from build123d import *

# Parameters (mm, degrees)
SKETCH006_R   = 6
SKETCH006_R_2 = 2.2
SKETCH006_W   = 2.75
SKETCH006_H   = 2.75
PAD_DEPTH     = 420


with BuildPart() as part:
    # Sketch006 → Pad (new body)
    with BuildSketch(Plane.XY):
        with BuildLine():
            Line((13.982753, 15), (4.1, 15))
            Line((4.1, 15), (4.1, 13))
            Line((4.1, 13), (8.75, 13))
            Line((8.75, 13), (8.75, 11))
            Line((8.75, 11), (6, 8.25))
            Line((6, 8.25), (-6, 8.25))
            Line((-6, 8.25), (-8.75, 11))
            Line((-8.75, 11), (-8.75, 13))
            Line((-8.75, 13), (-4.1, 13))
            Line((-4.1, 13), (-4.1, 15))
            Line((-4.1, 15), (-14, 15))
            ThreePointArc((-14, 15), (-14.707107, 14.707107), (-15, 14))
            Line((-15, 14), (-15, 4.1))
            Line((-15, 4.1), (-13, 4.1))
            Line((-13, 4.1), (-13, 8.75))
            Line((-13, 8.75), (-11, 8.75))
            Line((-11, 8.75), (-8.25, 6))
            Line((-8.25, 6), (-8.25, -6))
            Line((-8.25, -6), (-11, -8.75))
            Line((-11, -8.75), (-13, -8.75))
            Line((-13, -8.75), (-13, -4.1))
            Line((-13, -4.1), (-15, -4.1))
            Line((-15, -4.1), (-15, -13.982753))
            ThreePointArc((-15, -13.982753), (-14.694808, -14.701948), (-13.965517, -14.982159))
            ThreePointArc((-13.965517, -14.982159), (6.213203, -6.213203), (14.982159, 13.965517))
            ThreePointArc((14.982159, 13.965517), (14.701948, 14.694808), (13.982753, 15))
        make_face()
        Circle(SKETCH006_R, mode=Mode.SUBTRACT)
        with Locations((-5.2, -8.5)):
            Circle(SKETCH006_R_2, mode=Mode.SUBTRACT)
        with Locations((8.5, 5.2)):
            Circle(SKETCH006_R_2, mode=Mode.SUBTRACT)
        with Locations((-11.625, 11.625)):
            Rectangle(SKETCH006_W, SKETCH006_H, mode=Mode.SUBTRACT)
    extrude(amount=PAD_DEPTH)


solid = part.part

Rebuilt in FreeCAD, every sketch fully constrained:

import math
import FreeCAD as App
import Part
import Sketcher
Q = App.Units.Quantity


def add_polygon(sketch, points):
    """Adds a closed chain of lines whose ends are joined by coincident constraints."""
    first, n = sketch.GeometryCount, len(points)
    for a, b in zip(points, points[1:] + points[:1]):
        sketch.addGeometry(Part.LineSegment(App.Vector(*a, 0), App.Vector(*b, 0)), False)
    for i in range(n):
        sketch.addConstraint(Sketcher.Constraint("Coincident", first + i, 2, first + (i + 1) % n, 1))

doc = App.newDocument("Part")
body = doc.addObject("PartDesign::Body", "Body")

# Sketch on XY plane
sketch1 = body.newObject("Sketcher::SketchObject", "Sketch")
sketch1.AttachmentSupport = (doc.getObject("XY_Plane"), [""])
sketch1.MapMode = "FlatFace"
sketch1.addGeometry(Part.LineSegment(App.Vector(14, 15, 0), App.Vector(4.1, 15, 0)), False)  # 0
sketch1.addGeometry(Part.LineSegment(App.Vector(4.1, 15, 0), App.Vector(4.1, 13, 0)), False)  # 1
sketch1.addGeometry(Part.LineSegment(App.Vector(4.1, 13, 0), App.Vector(8.8, 13, 0)), False)  # 2
sketch1.addGeometry(Part.LineSegment(App.Vector(8.8, 13, 0), App.Vector(8.8, 11, 0)), False)  # 3
sketch1.addGeometry(Part.LineSegment(App.Vector(8.8, 11, 0), App.Vector(6, 8.2, 0)), False)  # 4
sketch1.addGeometry(Part.LineSegment(App.Vector(6, 8.2, 0), App.Vector(-6, 8.2, 0)), False)  # 5
sketch1.addGeometry(Part.LineSegment(App.Vector(-6, 8.2, 0), App.Vector(-8.8, 11, 0)), False)  # 6
sketch1.addGeometry(Part.LineSegment(App.Vector(-8.8, 11, 0), App.Vector(-8.8, 13, 0)), False)  # 7
sketch1.addGeometry(Part.LineSegment(App.Vector(-8.8, 13, 0), App.Vector(-4.1, 13, 0)), False)  # 8
sketch1.addGeometry(Part.LineSegment(App.Vector(-4.1, 13, 0), App.Vector(-4.1, 15, 0)), False)  # 9
sketch1.addGeometry(Part.LineSegment(App.Vector(-4.1, 15, 0), App.Vector(-14, 15, 0)), False)  # 10
sketch1.addGeometry(Part.ArcOfCircle(Part.Circle(App.Vector(-14, 14, 0), App.Vector(0, 0, 1), 1), math.radians(90), math.radians(180)), False)  # 11
sketch1.addGeometry(Part.LineSegment(App.Vector(-15, 14, 0), App.Vector(-15, 4.1, 0)), False)  # 12
sketch1.addGeometry(Part.LineSegment(App.Vector(-15, 4.1, 0), App.Vector(-13, 4.1, 0)), False)  # 13
sketch1.addGeometry(Part.LineSegment(App.Vector(-13, 4.1, 0), App.Vector(-13, 8.8, 0)), False)  # 14
sketch1.addGeometry(Part.LineSegment(App.Vector(-13, 8.8, 0), App.Vector(-11, 8.8, 0)), False)  # 15
sketch1.addGeometry(Part.LineSegment(App.Vector(-11, 8.8, 0), App.Vector(-8.2, 6, 0)), False)  # 16
sketch1.addGeometry(Part.LineSegment(App.Vector(-8.2, 6, 0), App.Vector(-8.2, -6, 0)), False)  # 17
sketch1.addGeometry(Part.LineSegment(App.Vector(-8.2, -6, 0), App.Vector(-11, -8.8, 0)), False)  # 18
sketch1.addGeometry(Part.LineSegment(App.Vector(-11, -8.8, 0), App.Vector(-13, -8.8, 0)), False)  # 19
sketch1.addGeometry(Part.LineSegment(App.Vector(-13, -8.8, 0), App.Vector(-13, -4.1, 0)), False)  # 20
sketch1.addGeometry(Part.LineSegment(App.Vector(-13, -4.1, 0), App.Vector(-15, -4.1, 0)), False)  # 21
sketch1.addGeometry(Part.LineSegment(App.Vector(-15, -4.1, 0), App.Vector(-15, -14, 0)), False)  # 22
sketch1.addGeometry(Part.ArcOfCircle(Part.Circle(App.Vector(-14, -14, 0), App.Vector(0, 0, 1), 1), math.radians(-180), math.radians(-88)), False)  # 23
sketch1.addGeometry(Part.ArcOfCircle(Part.Circle(App.Vector(-15, 15, 0), App.Vector(0, 0, 1), 30), math.radians(-88), math.radians(-2)), False)  # 24
sketch1.addGeometry(Part.ArcOfCircle(Part.Circle(App.Vector(14, 14, 0), App.Vector(0, 0, 1), 1), math.radians(-2), math.radians(90)), False)  # 25
sketch1.addGeometry(Part.Circle(App.Vector(-5.2, -8.5, 0), App.Vector(0, 0, 1), 2.2), False)  # 26
sketch1.addGeometry(Part.Circle(App.Vector(0, 0, 0), App.Vector(0, 0, 1), 6), False)  # 27
add_polygon(sketch1, [(-10.2, 10.2), (-13, 10.2), (-13, 13), (-10.2, 13)])  # lines 28-31
sketch1.addGeometry(Part.Circle(App.Vector(8.5, 5.2, 0), App.Vector(0, 0, 1), 2.2), False)  # 32
sketch1.addConstraint([
    Sketcher.Constraint("Coincident", 0, 2, 1, 1),
    Sketcher.Constraint("Coincident", 1, 2, 2, 1),
    Sketcher.Constraint("Coincident", 2, 2, 3, 1),
    Sketcher.Constraint("Coincident", 3, 2, 4, 1),
    Sketcher.Constraint("Coincident", 4, 2, 5, 1),
    Sketcher.Constraint("Coincident", 5, 2, 6, 1),
    Sketcher.Constraint("Coincident", 6, 2, 7, 1),
    Sketcher.Constraint("Coincident", 7, 2, 8, 1),
    Sketcher.Constraint("Coincident", 8, 2, 9, 1),
    Sketcher.Constraint("Coincident", 9, 2, 10, 1),
    Sketcher.Constraint("Tangent", 10, 2, 11, 1),
    Sketcher.Constraint("Tangent", 11, 2, 12, 1),
    Sketcher.Constraint("Coincident", 12, 2, 13, 1),
    Sketcher.Constraint("Coincident", 13, 2, 14, 1),
    Sketcher.Constraint("Coincident", 14, 2, 15, 1),
    Sketcher.Constraint("Coincident", 15, 2, 16, 1),
    Sketcher.Constraint("Coincident", 16, 2, 17, 1),
    Sketcher.Constraint("Coincident", 17, 2, 18, 1),
    Sketcher.Constraint("Coincident", 18, 2, 19, 1),
    Sketcher.Constraint("Coincident", 19, 2, 20, 1),
    Sketcher.Constraint("Coincident", 20, 2, 21, 1),
    Sketcher.Constraint("Coincident", 21, 2, 22, 1),
    Sketcher.Constraint("Tangent", 22, 2, 23, 1),
    Sketcher.Constraint("Tangent", 23, 2, 24, 1),
    Sketcher.Constraint("Tangent", 24, 2, 25, 1),
    Sketcher.Constraint("Tangent", 25, 2, 0, 1),
    Sketcher.Constraint("Horizontal", 0),
    Sketcher.Constraint("Vertical", 1),
    Sketcher.Constraint("Horizontal", 2),
    Sketcher.Constraint("Vertical", 3),
    Sketcher.Constraint("Horizontal", 5),
    Sketcher.Constraint("Vertical", 7),
    Sketcher.Constraint("Horizontal", 8),
    Sketcher.Constraint("Vertical", 9),
    Sketcher.Constraint("Horizontal", 10),
    Sketcher.Constraint("Vertical", 12),
    Sketcher.Constraint("Horizontal", 13),
    Sketcher.Constraint("Vertical", 14),
    Sketcher.Constraint("Horizontal", 15),
    Sketcher.Constraint("Vertical", 17),
    Sketcher.Constraint("Horizontal", 19),
    Sketcher.Constraint("Vertical", 20),
    Sketcher.Constraint("Horizontal", 21),
    Sketcher.Constraint("Vertical", 22),
    Sketcher.Constraint("Horizontal", 28),
    Sketcher.Constraint("Vertical", 29),
    Sketcher.Constraint("Horizontal", 30),
    Sketcher.Constraint("Vertical", 31),
    Sketcher.Constraint("Coincident", 27, 3, -1, 1),
    Sketcher.Constraint("Equal", 23, 25),
    Sketcher.Constraint("Equal", 26, 32),
    Sketcher.Constraint("Symmetric", 3, 2, 6, 2, -2),
    Sketcher.Constraint("Symmetric", 1, 2, 8, 2, -2),
    Sketcher.Constraint("Symmetric", 15, 2, 18, 2, -1),
    Sketcher.Constraint("Symmetric", 13, 2, 20, 2, -1),
    Sketcher.Constraint("Perpendicular", 4, 6),
    Sketcher.Constraint("Parallel", 6, 16),
    Sketcher.Constraint("Perpendicular", 16, 18),
    Sketcher.Constraint("Horizontal", 0, 2, 9, 2),
    Sketcher.Constraint("Horizontal", 25, 3, 11, 2),
    Sketcher.Constraint("Horizontal", 8, 2, 29, 2),
    Sketcher.Constraint("Vertical", 23, 3, 10, 2),
    Sketcher.Constraint("Vertical", 20, 2, 28, 2),
    Sketcher.Constraint("Equal", 13, 15),
    Sketcher.Constraint("Equal", 21, 1),
    Sketcher.Constraint("Equal", 1, 3),
    Sketcher.Constraint("Equal", 10, 12),
    Sketcher.Constraint("Equal", 8, 14),
    Sketcher.Constraint("Equal", 5, 17),
    Sketcher.Constraint("Equal", 0, 22),
    Sketcher.Constraint("Equal", 30, 29),
    Sketcher.Constraint("Equal", 4, 6),
    Sketcher.Constraint("Equal", 6, 16),
    Sketcher.Constraint("Diameter", 27, Q("12 mm")),
    Sketcher.Constraint("Radius", 11, Q("0.999999 mm")),
    Sketcher.Constraint("Diameter", 26, Q("4.4 mm")),
    Sketcher.Constraint("DistanceX", 5, 2, 5, 1, Q("12 mm")),
    Sketcher.Constraint("DistanceX", 13, 1, 13, 2, Q("2 mm")),
    Sketcher.Constraint("DistanceX", 10, 2, 10, 1, Q("9.9 mm")),
    Sketcher.Constraint("DistanceX", 11, 3, -1, 1, Q("14.000001 mm")),
    Sketcher.Constraint("DistanceX", 24, 3, 11, 3, Q("1.000001 mm")),
    Sketcher.Constraint("DistanceX", 2, 1, 2, 2, Q("4.65 mm")),
    Sketcher.Constraint("DistanceX", 28, 2, 28, 1, Q("2.75 mm")),
    Sketcher.Constraint("DistanceX", 26, 3, -1, 1, Q("5.2 mm")),
    Sketcher.Constraint("DistanceY", 26, 3, -1, 1, Q("8.5 mm")),
    Sketcher.Constraint("DistanceX", -1, 1, 32, 3, Q("8.5 mm")),
    Sketcher.Constraint("DistanceY", -1, 1, 32, 3, Q("5.2 mm")),
    Sketcher.Constraint("Radius", 24, Q("30.000003 mm")),
])
pad1 = body.newObject("PartDesign::Pad", "Pad")
pad1.Profile = sketch1
pad1.Length = 420

doc.recompute()
